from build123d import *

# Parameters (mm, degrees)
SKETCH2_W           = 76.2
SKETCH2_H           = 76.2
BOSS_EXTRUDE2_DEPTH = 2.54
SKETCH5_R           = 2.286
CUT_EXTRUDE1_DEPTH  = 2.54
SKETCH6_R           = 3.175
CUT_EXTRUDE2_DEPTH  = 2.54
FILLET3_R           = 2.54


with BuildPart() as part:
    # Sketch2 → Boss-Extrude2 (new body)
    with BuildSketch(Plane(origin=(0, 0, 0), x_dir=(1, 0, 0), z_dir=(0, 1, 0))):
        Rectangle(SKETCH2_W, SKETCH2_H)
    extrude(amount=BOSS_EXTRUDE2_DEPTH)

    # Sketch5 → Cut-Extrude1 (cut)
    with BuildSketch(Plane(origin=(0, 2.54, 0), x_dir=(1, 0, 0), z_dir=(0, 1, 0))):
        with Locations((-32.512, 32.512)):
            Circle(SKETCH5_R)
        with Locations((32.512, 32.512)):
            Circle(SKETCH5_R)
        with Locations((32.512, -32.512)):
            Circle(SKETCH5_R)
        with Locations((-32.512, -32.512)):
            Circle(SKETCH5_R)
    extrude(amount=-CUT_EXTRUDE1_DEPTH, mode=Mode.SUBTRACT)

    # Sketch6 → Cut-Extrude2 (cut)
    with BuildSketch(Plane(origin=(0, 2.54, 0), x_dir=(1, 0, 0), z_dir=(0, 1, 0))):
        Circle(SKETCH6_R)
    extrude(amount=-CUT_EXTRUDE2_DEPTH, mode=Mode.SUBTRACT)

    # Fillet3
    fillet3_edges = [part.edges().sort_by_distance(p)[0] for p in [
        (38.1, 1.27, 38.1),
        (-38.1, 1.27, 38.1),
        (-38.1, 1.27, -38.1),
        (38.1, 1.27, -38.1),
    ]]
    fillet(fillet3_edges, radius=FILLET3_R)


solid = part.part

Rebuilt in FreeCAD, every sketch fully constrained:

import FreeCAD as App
import Part
import Sketcher
from FreeCAD import Vector
Q = App.Units.Quantity


def edges_at(feature, points):
    """Names of the edges that pass closest to the given points."""
    edges = feature.Shape.Edges
    near = lambda p: min(range(len(edges)), key=lambda i: edges[i].distToShape(Part.Vertex(*p))[0])
    return sorted({f"Edge{near(p) + 1}" for p in points})


def add_polygon(sketch, points):
    """Adds a closed chain of lines whose ends are joined by coincident constraints."""
    first, n = sketch.GeometryCount, len(points)
    for a, b in zip(points, points[1:] + points[:1]):
        sketch.addGeometry(Part.LineSegment(App.Vector(*a, 0), App.Vector(*b, 0)), False)
    for i in range(n):
        sketch.addConstraint(Sketcher.Constraint("Coincident", first + i, 2, first + (i + 1) % n, 1))

doc = App.newDocument("Part")
params = doc.addObject("Spreadsheet::Sheet", "Params")
for row, (alias, value) in enumerate([
    ("sketch1_width", "3 in"),
    ("pad1_length", "0.1 in"),
    ("sketch2_diameter", "0.18 in"),
    ("pocket1_length", "0.1 in"),
    ("sketch3_diameter", "0.25 in"),
    ("pocket2_length", "0.1 in"),
    ("fillet_radius", "0.1 in"),
], start=1):
    params.set(f"A{row}", alias)
    params.set(f"B{row}", "=" + value)
    params.setAlias(f"B{row}", alias)

body = doc.addObject("PartDesign::Body", "Body")

sketch1 = doc.addObject("Sketcher::SketchObject", "Sketch")
body.addObject(sketch1)
sketch1.AttachmentSupport = (doc.XZ_Plane, [""])
sketch1.MapMode = "FlatFace"
add_polygon(sketch1, [(-38, -38), (-38, 38), (38, 38), (38, -38)])
sketch1.addConstraint([
    Sketcher.Constraint("Vertical", 0),
    Sketcher.Constraint("Horizontal", 1),
    Sketcher.Constraint("Vertical", 2),
    Sketcher.Constraint("Horizontal", 3),
    Sketcher.Constraint("Symmetric", 0, 2, 2, 2, -1, 1),
    Sketcher.Constraint("Equal", 3, 0),
    Sketcher.Constraint("DistanceX", 1, 1, 1, 2, Q("3 in")),
])
sketch1.setExpression("Constraints[10]", "Params.sketch1_width")
pad1 = doc.addObject("PartDesign::Pad", "Pad")
body.addObject(pad1)
pad1.Profile = sketch1
pad1.setExpression("Length", "Params.pad1_length")
pad1.Reversed = True

sketch2 = doc.addObject("Sketcher::SketchObject", "Sketch001")
body.addObject(sketch2)
sketch2.AttachmentSupport = (doc.XZ_Plane, [""])
sketch2.MapMode = "FlatFace"
sketch2.AttachmentOffset = App.Placement(Vector(0, 0, -0.1 * 25.4), App.Rotation())
sketch2.addGeometry([
    Part.Circle(Vector(-32.5, -32.5, 0), Vector(0, 0, 1), 2.3),
    Part.Circle(Vector(32.5, -32.5, 0), Vector(0, 0, 1), 2.3),
    Part.Circle(Vector(32.5, 32.5, 0), Vector(0, 0, 1), 2.3),
    Part.Circle(Vector(-32.5, 32.5, 0), Vector(0, 0, 1), 2.3),
], False)
sketch2.addConstraint([
    Sketcher.Constraint("Equal", 0, 1),
    Sketcher.Constraint("Equal", 1, 2),
    Sketcher.Constraint("Equal", 2, 3),
    Sketcher.Constraint("Symmetric", 0, 3, 2, 3, -1, 1),
    Sketcher.Constraint("Symmetric", 1, 3, 3, 3, -1, 1),
    Sketcher.Constraint("Symmetric", 0, 3, 1, 3, -2),
    Sketcher.Constraint("Diameter", 0, Q("0.18 in")),
    Sketcher.Constraint("DistanceX", 0, 3, -1, 1, Q("1.28 in")),
    Sketcher.Constraint("DistanceY", 0, 3, -1, 1, Q("1.28 in")),
])
sketch2.setExpression("Constraints[6]", "Params.sketch2_diameter")
pocket1 = doc.addObject("PartDesign::Pocket", "Pocket")
body.addObject(pocket1)
pocket1.Profile = sketch2
pocket1.setExpression("Length", "Params.pocket1_length")
pocket1.Reversed = True

sketch3 = doc.addObject("Sketcher::SketchObject", "Sketch002")
body.addObject(sketch3)
sketch3.AttachmentSupport = (doc.XZ_Plane, [""])
sketch3.MapMode = "FlatFace"
sketch3.AttachmentOffset = App.Placement(Vector(0, 0, -0.1 * 25.4), App.Rotation())
sketch3.addGeometry(Part.Circle(Vector(0, 0, 0), Vector(0, 0, 1), 3.2), False)
sketch3.addConstraint([
    Sketcher.Constraint("Coincident", 0, 3, -1, 1),
    Sketcher.Constraint("Diameter", 0, Q("0.25 in")),
])
sketch3.setExpression("Constraints[1]", "Params.sketch3_diameter")
pocket2 = doc.addObject("PartDesign::Pocket", "Pocket001")
body.addObject(pocket2)
pocket2.Profile = sketch3
pocket2.setExpression("Length", "Params.pocket2_length")
pocket2.Reversed = True
doc.recompute()

fillet = doc.addObject("PartDesign::Fillet", "Fillet")
body.addObject(fillet)
fillet.Base = (pocket2, edges_at(pocket2, [
    (38.1, 1.27, 38.1),
    (-38.1, 1.27, 38.1),
    (-38.1, 1.27, -38.1),
    (38.1, 1.27, -38.1),
]))
fillet.setExpression("Radius", "Params.fillet_radius")

doc.recompute()
